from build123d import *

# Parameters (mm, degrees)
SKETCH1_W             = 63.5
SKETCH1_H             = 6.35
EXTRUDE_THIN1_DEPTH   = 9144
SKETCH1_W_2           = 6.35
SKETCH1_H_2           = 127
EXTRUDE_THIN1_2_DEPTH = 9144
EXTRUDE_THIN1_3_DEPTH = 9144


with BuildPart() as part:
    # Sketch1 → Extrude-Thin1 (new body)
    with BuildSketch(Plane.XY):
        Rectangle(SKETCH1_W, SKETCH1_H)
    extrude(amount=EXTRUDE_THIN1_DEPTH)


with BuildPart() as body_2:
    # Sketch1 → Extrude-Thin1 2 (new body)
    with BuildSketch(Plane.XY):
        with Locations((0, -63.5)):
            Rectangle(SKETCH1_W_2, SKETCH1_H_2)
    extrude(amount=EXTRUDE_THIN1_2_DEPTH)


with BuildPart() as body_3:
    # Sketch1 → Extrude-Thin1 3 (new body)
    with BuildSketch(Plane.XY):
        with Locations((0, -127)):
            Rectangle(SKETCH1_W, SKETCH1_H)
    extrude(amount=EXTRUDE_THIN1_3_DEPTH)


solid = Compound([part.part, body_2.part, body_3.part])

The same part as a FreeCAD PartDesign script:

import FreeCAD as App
import Part
import Sketcher
from FreeCAD import Vector
Q = App.Units.Quantity

doc = App.newDocument("Part")
body = doc.addObject("PartDesign::Body", "Body")

# Sketch on XY plane
sketch1 = body.newObject("Sketcher::SketchObject", "Sketch")
sketch1.AttachmentSupport = (doc.getObject("XY_Plane"), [""])
sketch1.MapMode = "FlatFace"
sketch1.addGeometry([
    Part.LineSegment(Vector(-31.75, 3.175, 0), Vector(-31.75, -3.175, 0)),
    Part.LineSegment(Vector(-31.75, -3.175, 0), Vector(31.75, -3.175, 0)),
    Part.LineSegment(Vector(31.75, -3.175, 0), Vector(31.75, 3.175, 0)),
    Part.LineSegment(Vector(31.75, 3.175, 0), Vector(-31.75, 3.175, 0)),
], False)
sketch1.addConstraint([
    Sketcher.Constraint("Coincident", 0, 2, 1, 1),
    Sketcher.Constraint("Coincident", 1, 2, 2, 1),
    Sketcher.Constraint("Coincident", 2, 2, 3, 1),
    Sketcher.Constraint("Coincident", 3, 2, 0, 1),
    Sketcher.Constraint("Vertical", 0),
    Sketcher.Constraint("Horizontal", 1),
    Sketcher.Constraint("Vertical", 2),
    Sketcher.Constraint("Horizontal", 3),
    Sketcher.Constraint("Symmetric", 0, 2, 2, 2, -1, 1),
    Sketcher.Constraint("DistanceX", 1, 1, 1, 2, Q("2.5 in")),
    Sketcher.Constraint("DistanceY", 0, 2, 0, 1, Q("0.25 in")),
])
pad1 = body.newObject("PartDesign::Pad", "Pad")
pad1.Profile = sketch1
pad1.Length = Q("360 in")
body2 = doc.addObject("PartDesign::Body", "Body001")

# Sketch on XY plane
sketch2 = body2.newObject("Sketcher::SketchObject", "Sketch001")
sketch2.AttachmentSupport = (doc.getObject("XY_Plane001"), [""])
sketch2.MapMode = "FlatFace"
sketch2.addGeometry([
    Part.LineSegment(Vector(-3.175, 0, 0), Vector(-3.175, -127, 0)),
    Part.LineSegment(Vector(-3.175, -127, 0), Vector(3.175, -127, 0)),
    Part.LineSegment(Vector(3.175, -127, 0), Vector(3.175, 0, 0)),
    Part.LineSegment(Vector(3.175, 0, 0), Vector(-3.175, 0, 0)),
], False)
sketch2.addConstraint([
    Sketcher.Constraint("Coincident", 0, 2, 1, 1),
    Sketcher.Constraint("Coincident", 1, 2, 2, 1),
    Sketcher.Constraint("Coincident", 2, 2, 3, 1),
    Sketcher.Constraint("Coincident", 3, 2, 0, 1),
    Sketcher.Constraint("Vertical", 0),
    Sketcher.Constraint("Horizontal", 1),
    Sketcher.Constraint("Vertical", 2),
    Sketcher.Constraint("Horizontal", 3),
    Sketcher.Constraint("Symmetric", 2, 2, 3, 2, -1, 1),
    Sketcher.Constraint("DistanceY", 0, 2, 0, 1, Q("5 in")),
    Sketcher.Constraint("DistanceX", 1, 1, 1, 2, Q("0.25 in")),
])
pad2 = body2.newObject("PartDesign::Pad", "Pad001")
pad2.Profile = sketch2
pad2.Length = Q("360 in")
body3 = doc.addObject("PartDesign::Body", "Body002")

# Sketch on XY plane
sketch3 = body3.newObject("Sketcher::SketchObject", "Sketch002")
sketch3.AttachmentSupport = (doc.getObject("XY_Plane002"), [""])
sketch3.MapMode = "FlatFace"
sketch3.addGeometry([
    Part.LineSegment(Vector(-31.75, -123.825, 0), Vector(-31.75, -130.175, 0)),
    Part.LineSegment(Vector(-31.75, -130.175, 0), Vector(31.75, -130.175, 0)),
    Part.LineSegment(Vector(31.75, -130.175, 0), Vector(31.75, -123.825, 0)),
    Part.LineSegment(Vector(31.75, -123.825, 0), Vector(-31.75, -123.825, 0)),
], False)
sketch3.addConstraint([
    Sketcher.Constraint("Coincident", 0, 2, 1, 1),
    Sketcher.Constraint("Coincident", 1, 2, 2, 1),
    Sketcher.Constraint("Coincident", 2, 2, 3, 1),
    Sketcher.Constraint("Coincident", 3, 2, 0, 1),
    Sketcher.Constraint("Vertical", 0),
    Sketcher.Constraint("Horizontal", 1),
    Sketcher.Constraint("Vertical", 2),
    Sketcher.Constraint("Horizontal", 3),
    Sketcher.Constraint("DistanceX", 1, 1, 1, 2, Q("2.5 in")),
    Sketcher.Constraint("DistanceY", 0, 2, 0, 1, Q("0.25 in")),
    Sketcher.Constraint("DistanceX", 0, 2, -1, 1, Q("1.25 in")),
    Sketcher.Constraint("DistanceY", 0, 2, -1, 1, Q("5.125 in")),
])
pad3 = body3.newObject("PartDesign::Pad", "Pad002")
pad3.Profile = sketch3
pad3.Length = Q("360 in")

doc.recompute()
